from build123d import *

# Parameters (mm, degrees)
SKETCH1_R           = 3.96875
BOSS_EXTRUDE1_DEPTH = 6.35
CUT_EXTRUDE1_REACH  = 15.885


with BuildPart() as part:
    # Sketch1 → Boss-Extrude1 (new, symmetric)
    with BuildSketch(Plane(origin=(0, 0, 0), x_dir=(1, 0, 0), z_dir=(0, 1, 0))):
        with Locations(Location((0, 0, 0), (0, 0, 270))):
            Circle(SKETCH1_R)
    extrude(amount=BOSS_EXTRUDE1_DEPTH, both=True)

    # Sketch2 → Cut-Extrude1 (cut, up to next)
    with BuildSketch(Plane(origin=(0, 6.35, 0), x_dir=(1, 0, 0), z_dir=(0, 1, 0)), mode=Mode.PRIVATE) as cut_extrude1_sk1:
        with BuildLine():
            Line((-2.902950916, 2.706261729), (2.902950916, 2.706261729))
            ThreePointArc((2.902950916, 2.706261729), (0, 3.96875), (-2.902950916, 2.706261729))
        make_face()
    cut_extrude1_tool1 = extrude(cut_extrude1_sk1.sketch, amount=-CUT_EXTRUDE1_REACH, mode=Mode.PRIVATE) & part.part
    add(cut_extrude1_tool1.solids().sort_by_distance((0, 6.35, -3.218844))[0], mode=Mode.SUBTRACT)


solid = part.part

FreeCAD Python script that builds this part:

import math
import FreeCAD as App
import Part
import Sketcher
Q = App.Units.Quantity

doc = App.newDocument("Part")
params = doc.addObject("Spreadsheet::Sheet", "Params")
for row, (alias, value) in enumerate([
    ("sketch1_diameter", "0.3125 in"),
    ("pad1_length", "0.5 in"),
    ("sketch2_radius", "0.15625 in"),
], start=1):
    params.set(f"A{row}", alias)
    params.set(f"B{row}", "=" + value)
    params.setAlias(f"B{row}", alias)

body = doc.addObject("PartDesign::Body", "Body")

# Sketch on XZ plane
sketch1 = body.newObject("Sketcher::SketchObject", "Sketch")
sketch1.AttachmentSupport = (doc.getObject("XZ_Plane"), [""])
sketch1.MapMode = "FlatFace"
sketch1.addGeometry(Part.Circle(App.Vector(0, 0, 0), App.Vector(0, 0, 1), 4), False)
sketch1.addConstraint(Sketcher.Constraint("Coincident", 0, 3, -1, 1))
sketch1.addConstraint(Sketcher.Constraint("Diameter", 0, Q("0.3125 in")))
sketch1.setExpression("Constraints[1]", "Params.sketch1_diameter")
pad1 = body.newObject("PartDesign::Pad", "Pad")
pad1.Profile = sketch1
pad1.setExpression("Length", "Params.pad1_length")
pad1.Midplane = True

# Sketch on XZ plane
sketch2 = body.newObject("Sketcher::SketchObject", "Sketch001")
sketch2.AttachmentSupport = (doc.getObject("XZ_Plane"), [""])
sketch2.MapMode = "FlatFace"
sketch2.AttachmentOffset = App.Placement(App.Vector(0, 0, -0.25 * 25.4), App.Rotation())
sketch2.addGeometry(Part.LineSegment(App.Vector(-2.9, -2.7, 0), App.Vector(2.9, -2.7, 0)), False)
sketch2.addGeometry(Part.ArcOfCircle(Part.Circle(App.Vector(0, 0, 0), App.Vector(0, 0, 1), 4), math.radians(-137), math.radians(-43)), False)
sketch2.addConstraint(Sketcher.Constraint("Coincident", 0, 1, 1, 1))
sketch2.addConstraint(Sketcher.Constraint("Coincident", 1, 2, 0, 2))
sketch2.addConstraint(Sketcher.Constraint("Horizontal", 0))
sketch2.addConstraint(Sketcher.Constraint("Coincident", 1, 3, -1, 1))
sketch2.addConstraint(Sketcher.Constraint("Radius", 1, Q("0.15625 in")))
sketch2.addConstraint(Sketcher.Constraint("DistanceX", 0, 1, 0, 2, 5.805902))
sketch2.setExpression("Constraints[4]", "Params.sketch2_radius")
pocket1 = body.newObject("PartDesign::Pocket", "Pocket")
pocket1.Profile = sketch2
pocket1.Type = "UpToFirst"
pocket1.Reversed = True

doc.recompute()
